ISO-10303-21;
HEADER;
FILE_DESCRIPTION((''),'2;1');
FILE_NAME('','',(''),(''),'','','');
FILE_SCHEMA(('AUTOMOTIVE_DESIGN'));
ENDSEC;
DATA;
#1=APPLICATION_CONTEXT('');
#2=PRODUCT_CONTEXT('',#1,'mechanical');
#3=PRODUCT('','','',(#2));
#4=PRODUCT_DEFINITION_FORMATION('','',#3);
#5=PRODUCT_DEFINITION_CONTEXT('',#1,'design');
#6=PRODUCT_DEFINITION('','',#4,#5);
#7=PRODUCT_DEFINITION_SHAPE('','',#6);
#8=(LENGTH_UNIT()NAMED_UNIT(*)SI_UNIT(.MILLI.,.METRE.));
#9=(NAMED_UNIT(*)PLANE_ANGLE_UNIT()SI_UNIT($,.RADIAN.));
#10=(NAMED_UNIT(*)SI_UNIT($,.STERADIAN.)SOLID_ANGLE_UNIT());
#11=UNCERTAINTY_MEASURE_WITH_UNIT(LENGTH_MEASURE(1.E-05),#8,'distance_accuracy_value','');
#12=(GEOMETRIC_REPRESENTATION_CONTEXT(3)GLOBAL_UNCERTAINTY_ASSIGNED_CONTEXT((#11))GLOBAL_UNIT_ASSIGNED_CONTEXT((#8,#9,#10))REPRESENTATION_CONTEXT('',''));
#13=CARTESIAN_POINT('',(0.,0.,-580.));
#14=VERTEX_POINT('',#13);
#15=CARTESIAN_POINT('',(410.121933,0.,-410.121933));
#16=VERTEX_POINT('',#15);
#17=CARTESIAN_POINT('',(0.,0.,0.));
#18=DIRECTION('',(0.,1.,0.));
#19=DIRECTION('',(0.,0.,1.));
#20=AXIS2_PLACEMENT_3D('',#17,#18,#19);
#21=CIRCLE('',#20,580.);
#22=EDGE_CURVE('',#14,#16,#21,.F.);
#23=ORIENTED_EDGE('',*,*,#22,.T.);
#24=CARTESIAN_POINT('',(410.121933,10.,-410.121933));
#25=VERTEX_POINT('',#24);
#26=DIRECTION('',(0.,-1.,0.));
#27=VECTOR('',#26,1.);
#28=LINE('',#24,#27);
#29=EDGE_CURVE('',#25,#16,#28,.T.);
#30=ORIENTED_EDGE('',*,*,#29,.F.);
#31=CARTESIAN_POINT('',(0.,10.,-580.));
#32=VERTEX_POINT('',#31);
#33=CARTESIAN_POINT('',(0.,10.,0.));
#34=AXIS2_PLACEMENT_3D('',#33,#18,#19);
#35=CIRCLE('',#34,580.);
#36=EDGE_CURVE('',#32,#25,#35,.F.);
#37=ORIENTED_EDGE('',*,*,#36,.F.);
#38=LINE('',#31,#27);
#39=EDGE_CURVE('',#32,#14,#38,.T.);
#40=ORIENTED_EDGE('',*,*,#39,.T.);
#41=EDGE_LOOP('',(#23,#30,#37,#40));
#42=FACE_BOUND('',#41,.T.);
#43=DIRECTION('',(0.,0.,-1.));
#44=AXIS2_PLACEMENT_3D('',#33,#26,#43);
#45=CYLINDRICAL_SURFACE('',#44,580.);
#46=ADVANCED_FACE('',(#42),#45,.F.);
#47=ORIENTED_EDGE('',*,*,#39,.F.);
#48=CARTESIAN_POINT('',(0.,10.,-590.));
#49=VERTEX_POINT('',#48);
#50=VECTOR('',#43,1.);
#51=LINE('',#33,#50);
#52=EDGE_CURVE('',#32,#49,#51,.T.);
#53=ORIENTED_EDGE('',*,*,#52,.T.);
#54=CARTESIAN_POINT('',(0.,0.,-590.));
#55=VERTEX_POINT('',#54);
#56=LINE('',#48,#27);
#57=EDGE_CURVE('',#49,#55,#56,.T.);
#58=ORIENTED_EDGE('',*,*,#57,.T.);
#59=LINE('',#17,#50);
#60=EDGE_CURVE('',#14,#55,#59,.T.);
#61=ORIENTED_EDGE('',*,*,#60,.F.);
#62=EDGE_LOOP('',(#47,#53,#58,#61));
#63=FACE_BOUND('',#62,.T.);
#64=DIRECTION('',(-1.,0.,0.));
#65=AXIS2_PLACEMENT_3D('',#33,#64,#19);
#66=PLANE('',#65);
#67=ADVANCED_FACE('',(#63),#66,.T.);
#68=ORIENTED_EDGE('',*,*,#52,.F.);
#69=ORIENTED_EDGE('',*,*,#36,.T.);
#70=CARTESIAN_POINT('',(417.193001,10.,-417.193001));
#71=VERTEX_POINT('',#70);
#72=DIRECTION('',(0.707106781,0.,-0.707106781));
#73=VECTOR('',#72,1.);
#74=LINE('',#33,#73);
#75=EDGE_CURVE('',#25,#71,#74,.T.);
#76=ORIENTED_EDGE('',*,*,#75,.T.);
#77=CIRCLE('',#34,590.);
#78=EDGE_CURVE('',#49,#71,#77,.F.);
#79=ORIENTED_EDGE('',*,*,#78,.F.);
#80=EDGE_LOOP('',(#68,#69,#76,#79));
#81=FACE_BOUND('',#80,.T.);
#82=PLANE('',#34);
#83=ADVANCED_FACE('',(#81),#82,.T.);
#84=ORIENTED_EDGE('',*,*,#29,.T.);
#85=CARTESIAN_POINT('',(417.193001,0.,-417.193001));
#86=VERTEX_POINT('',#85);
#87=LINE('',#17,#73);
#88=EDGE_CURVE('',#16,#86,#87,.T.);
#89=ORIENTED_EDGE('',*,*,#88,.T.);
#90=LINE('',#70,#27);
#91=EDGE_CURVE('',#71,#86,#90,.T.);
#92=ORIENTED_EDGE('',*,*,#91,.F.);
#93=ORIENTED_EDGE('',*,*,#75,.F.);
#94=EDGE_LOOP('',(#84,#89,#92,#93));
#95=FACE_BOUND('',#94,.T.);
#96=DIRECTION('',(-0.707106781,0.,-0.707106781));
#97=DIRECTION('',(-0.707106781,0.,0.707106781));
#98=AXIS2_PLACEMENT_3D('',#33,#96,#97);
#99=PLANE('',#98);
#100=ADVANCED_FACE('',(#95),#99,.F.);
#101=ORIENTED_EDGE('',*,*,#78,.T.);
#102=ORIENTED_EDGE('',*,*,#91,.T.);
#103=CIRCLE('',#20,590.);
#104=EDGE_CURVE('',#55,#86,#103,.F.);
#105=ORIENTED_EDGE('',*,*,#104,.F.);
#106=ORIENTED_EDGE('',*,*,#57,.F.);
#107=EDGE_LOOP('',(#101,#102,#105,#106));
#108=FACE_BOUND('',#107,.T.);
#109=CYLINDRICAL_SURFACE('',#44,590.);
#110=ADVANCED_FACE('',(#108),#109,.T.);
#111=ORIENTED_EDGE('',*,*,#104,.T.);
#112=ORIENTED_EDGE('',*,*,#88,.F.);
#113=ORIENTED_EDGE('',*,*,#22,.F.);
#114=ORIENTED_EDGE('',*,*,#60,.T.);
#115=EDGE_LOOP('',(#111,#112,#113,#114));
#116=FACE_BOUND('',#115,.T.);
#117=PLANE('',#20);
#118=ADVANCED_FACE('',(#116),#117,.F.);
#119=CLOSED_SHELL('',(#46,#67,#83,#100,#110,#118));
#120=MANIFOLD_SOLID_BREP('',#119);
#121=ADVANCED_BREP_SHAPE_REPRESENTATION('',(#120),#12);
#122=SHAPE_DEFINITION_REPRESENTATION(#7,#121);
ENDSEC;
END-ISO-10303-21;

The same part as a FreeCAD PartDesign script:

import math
import FreeCAD as App
import Part
import Sketcher
Q = App.Units.Quantity

doc = App.newDocument("Part")
params = doc.addObject("Spreadsheet::Sheet", "Params")
for row, (alias, value) in enumerate([
    ("sketch1_radius", "590 mm"),
    ("sketch1_radius2", "580 mm"),
    ("pad1_length", "10 mm"),
], start=1):
    params.set(f"A{row}", alias)
    params.set(f"B{row}", "=" + value)
    params.setAlias(f"B{row}", alias)

body = doc.addObject("PartDesign::Body", "Body")

sketch1 = doc.addObject("Sketcher::SketchObject", "Sketch")
body.addObject(sketch1)
sketch1.AttachmentSupport = (doc.XZ_Plane, [""])
sketch1.MapMode = "FlatFace"
sketch1.addGeometry([
    Part.ArcOfCircle(Part.Circle(App.Vector(0, 0, 0), App.Vector(0, 0, 1), 590), math.radians(-90), math.radians(-45)),
    Part.LineSegment(App.Vector(0, -590, 0), App.Vector(0, -580, 0)),
    Part.ArcOfCircle(Part.Circle(App.Vector(0, 0, 0), App.Vector(0, 0, 1), 580), math.radians(-90), math.radians(-45)),
    Part.LineSegment(App.Vector(410.121933, -410.121933, 0), App.Vector(417.193001, -417.193001, 0)),
], False)
sketch1.addConstraint([
    Sketcher.Constraint("Coincident", 0, 1, 1, 1),
    Sketcher.Constraint("Coincident", 1, 2, 2, 1),
    Sketcher.Constraint("Coincident", 2, 2, 3, 1),
    Sketcher.Constraint("Coincident", 3, 2, 0, 2),
    Sketcher.Constraint("Vertical", 1),
    Sketcher.Constraint("Coincident", 0, 3, -1, 1),
    Sketcher.Constraint("Coincident", 2, 3, -1, 1),
    Sketcher.Constraint("PointOnObject", 1, 2, -2),
    Sketcher.Constraint("Radius", 0, Q("590 mm")),
    Sketcher.Constraint("Radius", 2, Q("580 mm")),
    Sketcher.Constraint("Angle", 3, Q("-45 deg")),
    Sketcher.Constraint("DistanceX", -1, 1, 3, 2, Q("417.193001 mm")),
])
sketch1.setExpression("Constraints[8]", "Params.sketch1_radius")
sketch1.setExpression("Constraints[9]", "Params.sketch1_radius2")
pad1 = doc.addObject("PartDesign::Pad", "Pad")
body.addObject(pad1)
pad1.Profile = sketch1
pad1.setExpression("Length", "Params.pad1_length")
pad1.Reversed = True

doc.recompute()
